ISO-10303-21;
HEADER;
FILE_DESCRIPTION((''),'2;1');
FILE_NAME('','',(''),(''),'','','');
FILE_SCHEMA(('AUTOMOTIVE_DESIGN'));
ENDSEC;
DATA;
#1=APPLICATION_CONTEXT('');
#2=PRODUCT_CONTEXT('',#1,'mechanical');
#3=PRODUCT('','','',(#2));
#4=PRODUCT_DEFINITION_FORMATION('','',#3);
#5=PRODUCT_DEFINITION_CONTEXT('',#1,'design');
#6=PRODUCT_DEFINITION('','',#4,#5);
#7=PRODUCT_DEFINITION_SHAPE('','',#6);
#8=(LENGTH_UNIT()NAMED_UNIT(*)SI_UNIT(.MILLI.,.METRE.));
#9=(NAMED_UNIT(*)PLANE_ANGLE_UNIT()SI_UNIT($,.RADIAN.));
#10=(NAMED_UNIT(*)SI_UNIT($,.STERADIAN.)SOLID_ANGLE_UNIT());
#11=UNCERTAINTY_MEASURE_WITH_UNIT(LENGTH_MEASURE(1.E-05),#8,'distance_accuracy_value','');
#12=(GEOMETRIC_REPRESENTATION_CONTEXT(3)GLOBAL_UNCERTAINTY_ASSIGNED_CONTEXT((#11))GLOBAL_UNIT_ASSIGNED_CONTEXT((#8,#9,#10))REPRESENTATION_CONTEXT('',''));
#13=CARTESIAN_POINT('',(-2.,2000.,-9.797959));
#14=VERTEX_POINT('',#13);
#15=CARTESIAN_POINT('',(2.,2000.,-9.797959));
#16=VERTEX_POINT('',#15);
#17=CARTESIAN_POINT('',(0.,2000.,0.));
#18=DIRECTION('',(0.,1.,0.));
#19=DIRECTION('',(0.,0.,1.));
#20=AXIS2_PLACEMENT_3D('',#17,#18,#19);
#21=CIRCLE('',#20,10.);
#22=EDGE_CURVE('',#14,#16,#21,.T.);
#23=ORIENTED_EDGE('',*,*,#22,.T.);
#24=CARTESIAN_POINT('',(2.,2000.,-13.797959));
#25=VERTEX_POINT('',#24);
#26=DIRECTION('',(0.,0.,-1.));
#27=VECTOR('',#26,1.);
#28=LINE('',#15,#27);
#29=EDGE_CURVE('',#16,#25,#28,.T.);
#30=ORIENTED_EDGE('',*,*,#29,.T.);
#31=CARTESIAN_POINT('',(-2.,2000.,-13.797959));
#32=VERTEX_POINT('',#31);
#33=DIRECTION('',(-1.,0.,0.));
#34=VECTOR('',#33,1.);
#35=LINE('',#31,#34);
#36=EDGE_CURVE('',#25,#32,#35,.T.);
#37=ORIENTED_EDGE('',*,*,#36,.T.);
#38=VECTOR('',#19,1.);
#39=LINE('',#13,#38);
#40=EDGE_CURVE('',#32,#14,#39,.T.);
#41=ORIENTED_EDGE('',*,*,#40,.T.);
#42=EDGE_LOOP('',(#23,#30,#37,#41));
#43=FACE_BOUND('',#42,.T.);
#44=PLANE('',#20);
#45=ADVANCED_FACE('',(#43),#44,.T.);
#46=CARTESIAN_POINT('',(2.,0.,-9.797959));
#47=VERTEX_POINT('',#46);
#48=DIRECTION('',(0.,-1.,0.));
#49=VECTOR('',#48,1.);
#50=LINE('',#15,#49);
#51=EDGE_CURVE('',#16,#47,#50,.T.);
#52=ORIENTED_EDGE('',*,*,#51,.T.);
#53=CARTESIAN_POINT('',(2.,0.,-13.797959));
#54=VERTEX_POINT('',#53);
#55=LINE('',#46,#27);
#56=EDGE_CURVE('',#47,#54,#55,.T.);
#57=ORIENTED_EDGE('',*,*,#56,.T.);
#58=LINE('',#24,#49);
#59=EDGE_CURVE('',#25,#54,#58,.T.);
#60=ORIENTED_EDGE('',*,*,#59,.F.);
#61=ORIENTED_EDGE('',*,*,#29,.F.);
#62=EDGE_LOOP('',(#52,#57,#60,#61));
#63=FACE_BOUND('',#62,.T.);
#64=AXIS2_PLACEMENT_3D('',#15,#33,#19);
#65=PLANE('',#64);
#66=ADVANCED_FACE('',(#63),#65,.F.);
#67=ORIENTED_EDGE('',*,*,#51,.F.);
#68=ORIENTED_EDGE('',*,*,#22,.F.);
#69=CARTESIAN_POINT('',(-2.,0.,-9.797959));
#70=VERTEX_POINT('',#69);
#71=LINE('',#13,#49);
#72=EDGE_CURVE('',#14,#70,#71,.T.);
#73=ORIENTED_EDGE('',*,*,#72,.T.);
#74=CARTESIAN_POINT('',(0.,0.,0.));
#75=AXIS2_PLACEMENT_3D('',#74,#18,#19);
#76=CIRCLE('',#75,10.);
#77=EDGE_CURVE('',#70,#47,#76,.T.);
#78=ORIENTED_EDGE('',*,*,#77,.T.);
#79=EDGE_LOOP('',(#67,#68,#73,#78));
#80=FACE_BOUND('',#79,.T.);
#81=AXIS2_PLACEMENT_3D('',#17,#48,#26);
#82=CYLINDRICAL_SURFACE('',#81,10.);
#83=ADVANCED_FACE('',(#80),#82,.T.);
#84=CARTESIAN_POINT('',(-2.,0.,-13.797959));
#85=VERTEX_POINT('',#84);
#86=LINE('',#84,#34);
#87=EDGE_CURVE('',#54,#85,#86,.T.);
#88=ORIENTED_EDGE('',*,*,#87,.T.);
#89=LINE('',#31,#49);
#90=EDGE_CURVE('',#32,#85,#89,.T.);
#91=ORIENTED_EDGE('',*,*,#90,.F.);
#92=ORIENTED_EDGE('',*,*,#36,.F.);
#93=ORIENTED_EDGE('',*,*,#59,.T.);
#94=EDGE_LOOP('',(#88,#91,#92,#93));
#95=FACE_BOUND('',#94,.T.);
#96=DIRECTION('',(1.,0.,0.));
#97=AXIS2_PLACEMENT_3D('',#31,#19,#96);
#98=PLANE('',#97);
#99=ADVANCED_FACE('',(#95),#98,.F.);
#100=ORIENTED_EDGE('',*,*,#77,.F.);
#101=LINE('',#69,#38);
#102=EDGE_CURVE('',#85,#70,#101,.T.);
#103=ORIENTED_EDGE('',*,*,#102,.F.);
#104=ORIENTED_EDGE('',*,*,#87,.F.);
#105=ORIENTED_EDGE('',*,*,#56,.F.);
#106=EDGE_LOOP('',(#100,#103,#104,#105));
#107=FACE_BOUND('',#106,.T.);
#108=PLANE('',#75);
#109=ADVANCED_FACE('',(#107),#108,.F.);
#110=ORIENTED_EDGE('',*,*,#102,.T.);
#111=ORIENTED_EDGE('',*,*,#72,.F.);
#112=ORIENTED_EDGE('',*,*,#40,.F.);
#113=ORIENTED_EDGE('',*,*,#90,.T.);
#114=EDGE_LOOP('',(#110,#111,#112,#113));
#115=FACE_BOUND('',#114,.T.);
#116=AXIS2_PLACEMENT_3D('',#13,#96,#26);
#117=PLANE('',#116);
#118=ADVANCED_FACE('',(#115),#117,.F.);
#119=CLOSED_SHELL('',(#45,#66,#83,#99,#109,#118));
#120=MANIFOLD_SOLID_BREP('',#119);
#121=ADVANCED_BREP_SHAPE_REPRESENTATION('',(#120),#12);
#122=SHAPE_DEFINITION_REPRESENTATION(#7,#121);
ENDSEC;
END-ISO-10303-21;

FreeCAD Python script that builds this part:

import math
import FreeCAD as App
import Part
import Sketcher
from FreeCAD import Vector
Q = App.Units.Quantity

doc = App.newDocument("Part")
params = doc.addObject("Spreadsheet::Sheet", "Params")
for row, (alias, value) in enumerate([
    ("sketch1_radius", "10 mm"),
    ("sketch1_width", "4 mm"),
    ("pad1_length", "2000 mm"),
], start=1):
    params.set(f"A{row}", alias)
    params.set(f"B{row}", "=" + value)
    params.setAlias(f"B{row}", alias)

body = doc.addObject("PartDesign::Body", "Body")

# Sketch on XZ plane
sketch1 = body.newObject("Sketcher::SketchObject", "Sketch")
sketch1.AttachmentSupport = (doc.getObject("XZ_Plane"), [""])
sketch1.MapMode = "FlatFace"
sketch1.addGeometry([
    Part.LineSegment(Vector(-2, -13.8, 0), Vector(-2, -9.8, 0)),
    Part.ArcOfCircle(Part.Circle(Vector(0, 0, 0), Vector(0, 0, 1), 10), math.radians(-78), math.radians(258)),
    Part.LineSegment(Vector(2, -9.8, 0), Vector(2, -13.8, 0)),
    Part.LineSegment(Vector(2, -13.8, 0), Vector(-2, -13.8, 0)),
], False)
sketch1.addConstraint([
    Sketcher.Constraint("Coincident", 0, 2, 1, 2),
    Sketcher.Constraint("Coincident", 1, 1, 2, 1),
    Sketcher.Constraint("Coincident", 2, 2, 3, 1),
    Sketcher.Constraint("Coincident", 3, 2, 0, 1),
    Sketcher.Constraint("Vertical", 0),
    Sketcher.Constraint("Vertical", 2),
    Sketcher.Constraint("Horizontal", 3),
    Sketcher.Constraint("Coincident", 1, 3, -1, 1),
    Sketcher.Constraint("Horizontal", 0, 2, 1, 1),
    Sketcher.Constraint("Equal", 3, 0),
    Sketcher.Constraint("Radius", 1, Q("10 mm")),
    Sketcher.Constraint("DistanceX", 3, 2, 3, 1, Q("4 mm")),
])
sketch1.setExpression("Constraints[10]", "Params.sketch1_radius")
sketch1.setExpression("Constraints[11]", "Params.sketch1_width")
pad1 = body.newObject("PartDesign::Pad", "Pad")
pad1.Profile = sketch1
pad1.setExpression("Length", "Params.pad1_length")
pad1.Reversed = True

doc.recompute()
